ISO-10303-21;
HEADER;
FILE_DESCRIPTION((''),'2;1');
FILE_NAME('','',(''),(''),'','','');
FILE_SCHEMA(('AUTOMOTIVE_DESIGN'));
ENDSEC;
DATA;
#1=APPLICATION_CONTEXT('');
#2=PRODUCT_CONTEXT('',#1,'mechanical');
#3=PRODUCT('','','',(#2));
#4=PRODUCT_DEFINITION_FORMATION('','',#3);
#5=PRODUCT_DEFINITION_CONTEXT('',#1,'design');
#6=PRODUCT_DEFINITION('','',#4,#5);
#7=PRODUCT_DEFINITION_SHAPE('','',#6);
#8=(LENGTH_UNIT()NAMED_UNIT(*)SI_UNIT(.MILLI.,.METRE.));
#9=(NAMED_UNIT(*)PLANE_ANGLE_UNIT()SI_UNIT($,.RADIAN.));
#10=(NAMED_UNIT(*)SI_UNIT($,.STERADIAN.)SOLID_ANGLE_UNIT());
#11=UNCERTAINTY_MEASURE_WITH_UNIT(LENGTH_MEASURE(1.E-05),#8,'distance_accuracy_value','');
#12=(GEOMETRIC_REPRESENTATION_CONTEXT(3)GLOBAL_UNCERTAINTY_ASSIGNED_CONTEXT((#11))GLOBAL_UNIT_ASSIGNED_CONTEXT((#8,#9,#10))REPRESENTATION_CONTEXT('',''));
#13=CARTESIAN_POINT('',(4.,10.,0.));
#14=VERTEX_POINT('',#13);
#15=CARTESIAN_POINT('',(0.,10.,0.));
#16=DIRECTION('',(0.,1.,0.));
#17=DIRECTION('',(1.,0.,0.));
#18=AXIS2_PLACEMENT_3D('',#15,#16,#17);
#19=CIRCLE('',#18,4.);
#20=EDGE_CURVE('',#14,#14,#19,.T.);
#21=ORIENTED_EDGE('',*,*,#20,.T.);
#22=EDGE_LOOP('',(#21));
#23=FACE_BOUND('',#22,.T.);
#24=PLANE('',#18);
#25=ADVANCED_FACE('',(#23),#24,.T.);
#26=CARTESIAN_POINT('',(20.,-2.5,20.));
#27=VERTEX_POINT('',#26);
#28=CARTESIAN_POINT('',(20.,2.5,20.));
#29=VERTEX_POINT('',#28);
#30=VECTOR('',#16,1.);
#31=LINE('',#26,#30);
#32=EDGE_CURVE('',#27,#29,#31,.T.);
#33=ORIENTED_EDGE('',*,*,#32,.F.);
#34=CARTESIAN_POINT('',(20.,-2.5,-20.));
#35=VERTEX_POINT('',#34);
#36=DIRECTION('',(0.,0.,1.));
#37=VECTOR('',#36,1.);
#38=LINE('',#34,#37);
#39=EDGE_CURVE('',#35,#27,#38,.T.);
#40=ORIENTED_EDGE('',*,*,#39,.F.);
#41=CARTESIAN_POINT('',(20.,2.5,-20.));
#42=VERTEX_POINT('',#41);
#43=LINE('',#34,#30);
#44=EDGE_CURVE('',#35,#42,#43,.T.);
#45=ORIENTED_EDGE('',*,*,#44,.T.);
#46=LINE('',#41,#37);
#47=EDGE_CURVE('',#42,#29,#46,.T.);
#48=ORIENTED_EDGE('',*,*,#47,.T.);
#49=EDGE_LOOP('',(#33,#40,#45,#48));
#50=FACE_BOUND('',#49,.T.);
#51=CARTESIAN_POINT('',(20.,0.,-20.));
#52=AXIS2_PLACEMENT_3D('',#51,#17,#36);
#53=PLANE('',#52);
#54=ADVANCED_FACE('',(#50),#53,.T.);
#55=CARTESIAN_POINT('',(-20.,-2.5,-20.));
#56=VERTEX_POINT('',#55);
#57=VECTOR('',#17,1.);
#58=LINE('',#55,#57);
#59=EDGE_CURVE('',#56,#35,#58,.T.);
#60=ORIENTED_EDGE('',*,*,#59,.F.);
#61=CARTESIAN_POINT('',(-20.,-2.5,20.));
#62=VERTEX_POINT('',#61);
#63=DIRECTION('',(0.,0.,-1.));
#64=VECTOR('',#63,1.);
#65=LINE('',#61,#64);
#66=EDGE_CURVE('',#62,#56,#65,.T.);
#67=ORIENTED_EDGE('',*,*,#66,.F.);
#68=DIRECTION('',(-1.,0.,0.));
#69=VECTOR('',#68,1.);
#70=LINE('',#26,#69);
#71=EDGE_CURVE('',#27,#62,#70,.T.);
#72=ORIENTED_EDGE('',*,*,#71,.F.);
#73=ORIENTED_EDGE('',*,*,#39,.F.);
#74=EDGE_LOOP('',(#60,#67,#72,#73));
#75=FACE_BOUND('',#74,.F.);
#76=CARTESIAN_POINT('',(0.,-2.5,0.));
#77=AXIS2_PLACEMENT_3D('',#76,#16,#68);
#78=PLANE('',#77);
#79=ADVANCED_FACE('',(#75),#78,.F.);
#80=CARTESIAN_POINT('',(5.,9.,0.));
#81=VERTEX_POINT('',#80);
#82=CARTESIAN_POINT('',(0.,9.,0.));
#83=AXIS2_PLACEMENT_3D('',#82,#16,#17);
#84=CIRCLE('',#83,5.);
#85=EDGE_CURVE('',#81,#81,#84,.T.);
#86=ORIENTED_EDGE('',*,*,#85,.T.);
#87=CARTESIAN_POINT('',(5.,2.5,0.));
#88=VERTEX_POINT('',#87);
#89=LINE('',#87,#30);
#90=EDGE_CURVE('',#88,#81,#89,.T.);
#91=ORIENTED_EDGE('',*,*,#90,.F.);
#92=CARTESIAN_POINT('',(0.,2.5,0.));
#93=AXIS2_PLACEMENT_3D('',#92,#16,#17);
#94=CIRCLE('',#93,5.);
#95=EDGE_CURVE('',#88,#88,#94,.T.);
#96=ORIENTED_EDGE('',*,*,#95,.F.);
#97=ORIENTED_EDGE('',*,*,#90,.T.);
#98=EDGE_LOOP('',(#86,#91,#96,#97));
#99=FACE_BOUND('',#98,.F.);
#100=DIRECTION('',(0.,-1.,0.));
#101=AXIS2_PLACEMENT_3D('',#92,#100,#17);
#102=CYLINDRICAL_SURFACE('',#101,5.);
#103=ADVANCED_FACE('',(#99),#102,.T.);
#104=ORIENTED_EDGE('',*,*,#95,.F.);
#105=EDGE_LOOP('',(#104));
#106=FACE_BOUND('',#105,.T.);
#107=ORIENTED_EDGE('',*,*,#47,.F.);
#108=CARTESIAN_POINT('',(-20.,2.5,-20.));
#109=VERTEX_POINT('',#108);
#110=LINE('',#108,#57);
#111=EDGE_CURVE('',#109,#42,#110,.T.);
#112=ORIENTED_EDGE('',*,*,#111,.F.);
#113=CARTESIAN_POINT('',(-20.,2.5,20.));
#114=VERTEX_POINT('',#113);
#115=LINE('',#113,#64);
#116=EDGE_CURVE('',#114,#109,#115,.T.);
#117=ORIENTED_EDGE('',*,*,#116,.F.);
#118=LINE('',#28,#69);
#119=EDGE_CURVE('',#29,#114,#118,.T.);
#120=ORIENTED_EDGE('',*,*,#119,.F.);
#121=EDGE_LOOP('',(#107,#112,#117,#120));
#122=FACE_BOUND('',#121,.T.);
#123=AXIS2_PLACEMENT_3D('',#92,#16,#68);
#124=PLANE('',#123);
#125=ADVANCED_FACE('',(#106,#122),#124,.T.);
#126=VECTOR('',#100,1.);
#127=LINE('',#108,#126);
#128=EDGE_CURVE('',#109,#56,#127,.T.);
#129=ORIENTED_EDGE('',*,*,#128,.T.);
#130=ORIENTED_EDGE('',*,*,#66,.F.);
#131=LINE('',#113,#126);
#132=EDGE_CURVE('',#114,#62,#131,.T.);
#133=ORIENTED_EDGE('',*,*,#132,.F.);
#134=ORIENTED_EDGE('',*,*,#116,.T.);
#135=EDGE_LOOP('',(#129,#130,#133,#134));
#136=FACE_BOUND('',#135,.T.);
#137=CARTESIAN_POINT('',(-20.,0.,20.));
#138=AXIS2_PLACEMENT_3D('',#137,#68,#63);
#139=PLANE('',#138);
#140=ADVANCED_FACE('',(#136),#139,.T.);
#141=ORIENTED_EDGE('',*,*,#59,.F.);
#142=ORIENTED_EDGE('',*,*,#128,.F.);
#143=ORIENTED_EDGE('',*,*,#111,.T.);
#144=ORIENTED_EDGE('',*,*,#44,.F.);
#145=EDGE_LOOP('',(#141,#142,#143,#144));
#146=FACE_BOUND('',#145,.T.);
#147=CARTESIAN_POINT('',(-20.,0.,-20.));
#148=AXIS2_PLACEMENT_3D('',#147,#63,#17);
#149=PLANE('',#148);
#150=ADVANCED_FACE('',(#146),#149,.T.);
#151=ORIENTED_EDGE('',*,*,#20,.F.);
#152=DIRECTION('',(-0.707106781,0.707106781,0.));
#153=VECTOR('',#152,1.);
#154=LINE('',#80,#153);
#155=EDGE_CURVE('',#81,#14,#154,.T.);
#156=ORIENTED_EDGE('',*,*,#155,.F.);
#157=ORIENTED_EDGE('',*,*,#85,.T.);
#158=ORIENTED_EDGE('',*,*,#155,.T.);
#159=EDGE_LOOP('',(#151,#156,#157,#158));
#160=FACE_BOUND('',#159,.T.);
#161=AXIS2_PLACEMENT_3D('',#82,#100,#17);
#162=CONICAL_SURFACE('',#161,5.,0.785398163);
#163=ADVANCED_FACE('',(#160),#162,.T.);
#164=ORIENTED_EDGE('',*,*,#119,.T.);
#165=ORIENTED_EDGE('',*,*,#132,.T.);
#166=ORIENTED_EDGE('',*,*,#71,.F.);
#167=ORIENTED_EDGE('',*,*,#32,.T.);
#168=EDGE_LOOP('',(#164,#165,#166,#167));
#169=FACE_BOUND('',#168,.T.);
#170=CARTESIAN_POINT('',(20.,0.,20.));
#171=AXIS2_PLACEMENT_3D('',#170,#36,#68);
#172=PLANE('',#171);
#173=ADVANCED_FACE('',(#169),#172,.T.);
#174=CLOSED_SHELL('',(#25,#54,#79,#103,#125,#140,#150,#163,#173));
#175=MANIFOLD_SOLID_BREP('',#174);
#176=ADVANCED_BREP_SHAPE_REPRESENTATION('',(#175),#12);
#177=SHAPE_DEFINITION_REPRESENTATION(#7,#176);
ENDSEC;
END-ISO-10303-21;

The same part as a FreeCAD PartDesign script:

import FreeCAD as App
import Part
import Sketcher
from FreeCAD import Vector
Q = App.Units.Quantity


def edges_at(feature, points):
    """Names of the edges that pass closest to the given points."""
    edges = feature.Shape.Edges
    near = lambda p: min(range(len(edges)), key=lambda i: edges[i].distToShape(Part.Vertex(*p))[0])
    return sorted({f"Edge{near(p) + 1}" for p in points})


def add_polygon(sketch, points):
    """Adds a closed chain of lines whose ends are joined by coincident constraints."""
    first, n = sketch.GeometryCount, len(points)
    for a, b in zip(points, points[1:] + points[:1]):
        sketch.addGeometry(Part.LineSegment(App.Vector(*a, 0), App.Vector(*b, 0)), False)
    for i in range(n):
        sketch.addConstraint(Sketcher.Constraint("Coincident", first + i, 2, first + (i + 1) % n, 1))

doc = App.newDocument("Part")
body = doc.addObject("PartDesign::Body", "Body")

sketch1 = doc.addObject("Sketcher::SketchObject", "Sketch")
body.addObject(sketch1)
sketch1.AttachmentSupport = (doc.XZ_Plane, [""])
sketch1.MapMode = "FlatFace"
add_polygon(sketch1, [(-20, 20), (20, 20), (20, -20), (-20, -20)])
sketch1.addConstraint([
    Sketcher.Constraint("Horizontal", 0),
    Sketcher.Constraint("Vertical", 1),
    Sketcher.Constraint("Horizontal", 2),
    Sketcher.Constraint("Vertical", 3),
    Sketcher.Constraint("Symmetric", 0, 2, 2, 2, -1, 1),
    Sketcher.Constraint("Equal", 2, 1),
    Sketcher.Constraint("DistanceX", 0, 1, 0, 2, Q("40 mm")),
])
pad1 = doc.addObject("PartDesign::Pad", "Pad")
body.addObject(pad1)
pad1.Profile = sketch1
pad1.Length = 5
pad1.Midplane = True

sketch2 = doc.addObject("Sketcher::SketchObject", "Sketch001")
body.addObject(sketch2)
sketch2.AttachmentSupport = (doc.XZ_Plane, [""])
sketch2.MapMode = "FlatFace"
sketch2.AttachmentOffset = App.Placement(Vector(0, 0, -2.5), App.Rotation())
sketch2.addGeometry(Part.Circle(Vector(0, 0, 0), Vector(0, 0, 1), 5), False)
sketch2.addConstraint([
    Sketcher.Constraint("Coincident", 0, 3, -1, 1),
    Sketcher.Constraint("Diameter", 0, Q("10 mm")),
])
pad2 = doc.addObject("PartDesign::Pad", "Pad001")
body.addObject(pad2)
pad2.Profile = sketch2
pad2.Length = 7.5
pad2.Reversed = True
doc.recompute()

chamfer = doc.addObject("PartDesign::Chamfer", "Chamfer")
body.addObject(chamfer)
chamfer.Base = (pad2, edges_at(pad2, [(-5, 10, 0)]))
chamfer.Size = 1

doc.recompute()
